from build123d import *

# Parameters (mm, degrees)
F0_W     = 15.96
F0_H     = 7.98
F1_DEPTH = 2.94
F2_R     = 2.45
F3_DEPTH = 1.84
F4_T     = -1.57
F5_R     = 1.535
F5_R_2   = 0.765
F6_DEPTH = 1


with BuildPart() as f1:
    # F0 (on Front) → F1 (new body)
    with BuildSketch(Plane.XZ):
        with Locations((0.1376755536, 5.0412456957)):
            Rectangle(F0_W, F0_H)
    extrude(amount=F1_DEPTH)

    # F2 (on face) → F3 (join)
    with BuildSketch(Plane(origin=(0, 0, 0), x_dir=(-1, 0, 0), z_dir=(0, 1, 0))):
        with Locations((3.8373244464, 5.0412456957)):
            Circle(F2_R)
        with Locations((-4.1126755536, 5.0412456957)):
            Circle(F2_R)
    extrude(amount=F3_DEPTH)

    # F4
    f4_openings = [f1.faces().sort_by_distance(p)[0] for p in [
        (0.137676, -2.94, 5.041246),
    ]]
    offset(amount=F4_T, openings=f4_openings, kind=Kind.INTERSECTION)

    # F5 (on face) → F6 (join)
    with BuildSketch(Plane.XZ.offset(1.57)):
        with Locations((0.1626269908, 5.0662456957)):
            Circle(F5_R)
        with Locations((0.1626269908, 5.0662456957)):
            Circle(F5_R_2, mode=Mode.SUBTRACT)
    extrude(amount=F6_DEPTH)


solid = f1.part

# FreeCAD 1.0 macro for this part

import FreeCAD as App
import Part
import Sketcher

V = App.Vector


def faces_at(feature, points):
    """Names of the faces that lie closest to the given points."""
    faces = feature.Shape.Faces
    near = lambda p: min(range(len(faces)), key=lambda i: faces[i].distToShape(Part.Vertex(*p))[0])
    return sorted({f"Face{near(p) + 1}" for p in points})


def add_polygon(sketch, points):
    """Adds a closed chain of lines whose ends are joined by coincident constraints."""
    first, n = sketch.GeometryCount, len(points)
    for a, b in zip(points, points[1:] + points[:1]):
        sketch.addGeometry(Part.LineSegment(App.Vector(*a, 0), App.Vector(*b, 0)), False)
    for i in range(n):
        sketch.addConstraint(Sketcher.Constraint("Coincident", first + i, 2, first + (i + 1) % n, 1))

doc = App.newDocument("Part")
body = doc.addObject("PartDesign::Body", "Body")

sketch1 = doc.addObject("Sketcher::SketchObject", "Sketch")
body.addObject(sketch1)
sketch1.AttachmentSupport = (doc.XZ_Plane, [""])
sketch1.MapMode = "FlatFace"
add_polygon(sketch1, [(-7.842324, 9.031246), (-7.842324, 1.051246), (8.117676, 1.051246), (8.117676, 9.031246)])
sketch1.addConstraint(Sketcher.Constraint("Vertical", 0))
sketch1.addConstraint(Sketcher.Constraint("Horizontal", 1))
sketch1.addConstraint(Sketcher.Constraint("Vertical", 2))
sketch1.addConstraint(Sketcher.Constraint("Horizontal", 3))
sketch1.addConstraint(Sketcher.Constraint("DistanceX", 1, 1, 1, 2, 15.96))
sketch1.addConstraint(Sketcher.Constraint("DistanceY", 0, 2, 0, 1, 7.98))
sketch1.addConstraint(Sketcher.Constraint("DistanceX", 0, 2, -1, 1, 7.842324))
sketch1.addConstraint(Sketcher.Constraint("DistanceY", -1, 1, 0, 2, 1.051246))
pad1 = doc.addObject("PartDesign::Pad", "Pad")
body.addObject(pad1)
pad1.Profile = sketch1
pad1.Length = 2.94

sketch2 = doc.addObject("Sketcher::SketchObject", "Sketch001")
body.addObject(sketch2)
sketch2.AttachmentSupport = (doc.XZ_Plane, [""])
sketch2.MapMode = "FlatFace"
sketch2.addGeometry(Part.Circle(V(-3.837324, 5.041246, 0), V(0, 0, 1), 2.45), False)
sketch2.addGeometry(Part.Circle(V(4.112676, 5.041246, 0), V(0, 0, 1), 2.45), False)
sketch2.addConstraint(Sketcher.Constraint("Equal", 0, 1))
sketch2.addConstraint(Sketcher.Constraint("Horizontal", 0, 3, 1, 3))
sketch2.addConstraint(Sketcher.Constraint("Diameter", 0, 4.9))
sketch2.addConstraint(Sketcher.Constraint("DistanceX", 0, 3, 1, 3, 7.95))
sketch2.addConstraint(Sketcher.Constraint("DistanceX", 0, 3, -1, 1, 3.837324))
sketch2.addConstraint(Sketcher.Constraint("DistanceY", -1, 1, 0, 3, 5.041246))
pad2 = doc.addObject("PartDesign::Pad", "Pad001")
body.addObject(pad2)
pad2.Profile = sketch2
pad2.Length = 1.84
pad2.Reversed = True
doc.recompute()

thickness = doc.addObject("PartDesign::Thickness", "Thickness")
body.addObject(thickness)
thickness.Base = (pad2, faces_at(pad2, [(0.138, -2.94, 5.041)]))
thickness.Value = 1.57
thickness.Reversed = True
thickness.Join = "Intersection"

sketch3 = doc.addObject("Sketcher::SketchObject", "Sketch002")
body.addObject(sketch3)
sketch3.AttachmentSupport = (doc.XZ_Plane, [""])
sketch3.MapMode = "FlatFace"
sketch3.AttachmentOffset = App.Placement(V(0, 0, 1.57), App.Rotation())
sketch3.addGeometry(Part.Circle(V(0.162627, 5.066246, 0), V(0, 0, 1), 1.535), False)
sketch3.addGeometry(Part.Circle(V(0.162627, 5.066246, 0), V(0, 0, 1), 0.765), False)
sketch3.addConstraint(Sketcher.Constraint("Coincident", 1, 3, 0, 3))
sketch3.addConstraint(Sketcher.Constraint("Diameter", 0, 3.07))
sketch3.addConstraint(Sketcher.Constraint("Diameter", 1, 1.53))
sketch3.addConstraint(Sketcher.Constraint("DistanceX", -1, 1, 0, 3, 0.162627))
sketch3.addConstraint(Sketcher.Constraint("DistanceY", -1, 1, 0, 3, 5.066246))
pad3 = doc.addObject("PartDesign::Pad", "Pad002")
body.addObject(pad3)
pad3.Profile = sketch3
pad3.Length = 1

doc.recompute()
